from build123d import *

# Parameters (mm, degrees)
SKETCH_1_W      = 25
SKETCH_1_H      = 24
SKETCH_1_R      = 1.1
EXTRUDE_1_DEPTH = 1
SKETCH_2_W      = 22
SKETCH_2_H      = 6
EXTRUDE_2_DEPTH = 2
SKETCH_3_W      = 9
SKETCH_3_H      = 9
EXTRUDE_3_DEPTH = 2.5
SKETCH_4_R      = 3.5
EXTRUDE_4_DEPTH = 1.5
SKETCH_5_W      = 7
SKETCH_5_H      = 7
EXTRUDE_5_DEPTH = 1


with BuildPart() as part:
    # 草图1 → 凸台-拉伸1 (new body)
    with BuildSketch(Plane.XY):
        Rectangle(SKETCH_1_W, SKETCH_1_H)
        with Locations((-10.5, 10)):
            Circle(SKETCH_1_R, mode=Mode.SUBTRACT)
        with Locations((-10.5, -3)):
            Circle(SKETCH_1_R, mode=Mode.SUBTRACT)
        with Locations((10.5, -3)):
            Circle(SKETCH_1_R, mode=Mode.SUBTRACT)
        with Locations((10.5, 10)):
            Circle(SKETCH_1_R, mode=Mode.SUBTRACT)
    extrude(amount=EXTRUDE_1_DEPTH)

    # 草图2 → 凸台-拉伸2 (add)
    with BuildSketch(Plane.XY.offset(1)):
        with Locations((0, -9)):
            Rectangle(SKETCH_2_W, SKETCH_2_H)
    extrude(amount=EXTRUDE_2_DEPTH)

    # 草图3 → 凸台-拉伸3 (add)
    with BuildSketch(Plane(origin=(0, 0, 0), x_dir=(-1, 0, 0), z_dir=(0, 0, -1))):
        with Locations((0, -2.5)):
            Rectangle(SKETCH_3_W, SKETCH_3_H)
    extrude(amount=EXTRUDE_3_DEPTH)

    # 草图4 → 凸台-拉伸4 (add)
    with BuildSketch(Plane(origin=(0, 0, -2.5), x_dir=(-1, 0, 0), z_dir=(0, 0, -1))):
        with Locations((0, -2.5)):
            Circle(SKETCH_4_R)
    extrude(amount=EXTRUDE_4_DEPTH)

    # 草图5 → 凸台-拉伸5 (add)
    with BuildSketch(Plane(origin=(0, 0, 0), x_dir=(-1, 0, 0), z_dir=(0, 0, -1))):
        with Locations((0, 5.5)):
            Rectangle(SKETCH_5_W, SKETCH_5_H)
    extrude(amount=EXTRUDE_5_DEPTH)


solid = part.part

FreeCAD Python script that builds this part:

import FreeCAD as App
import Part
import Sketcher
from FreeCAD import Vector

doc = App.newDocument("Part")
body = doc.addObject("PartDesign::Body", "Body")

sketch1 = body.newObject("Sketcher::SketchObject", "Sketch")
sketch1.AttachmentSupport = (doc.getObject("XY_Plane"), [""])
sketch1.MapMode = "FlatFace"
sketch1.addGeometry(Part.LineSegment(Vector(-12.5, 12, 0), Vector(-12.5, -12, 0)), False)
sketch1.addGeometry(Part.LineSegment(Vector(-12.5, -12, 0), Vector(12.5, -12, 0)), False)
sketch1.addGeometry(Part.LineSegment(Vector(12.5, -12, 0), Vector(12.5, 12, 0)), False)
sketch1.addGeometry(Part.LineSegment(Vector(12.5, 12, 0), Vector(-12.5, 12, 0)), False)
sketch1.addGeometry(Part.Circle(Vector(-10.5, -3, 0), Vector(0, 0, 1), 1.1), False)
sketch1.addGeometry(Part.Circle(Vector(10.5, -3, 0), Vector(0, 0, 1), 1.1), False)
sketch1.addGeometry(Part.Circle(Vector(-10.5, 10, 0), Vector(0, 0, 1), 1.1), False)
sketch1.addGeometry(Part.Circle(Vector(10.5, 10, 0), Vector(0, 0, 1), 1.1), False)
sketch1.addConstraint(Sketcher.Constraint("Coincident", 0, 2, 1, 1))
sketch1.addConstraint(Sketcher.Constraint("Coincident", 1, 2, 2, 1))
sketch1.addConstraint(Sketcher.Constraint("Coincident", 2, 2, 3, 1))
sketch1.addConstraint(Sketcher.Constraint("Coincident", 3, 2, 0, 1))
sketch1.addConstraint(Sketcher.Constraint("Vertical", 0))
sketch1.addConstraint(Sketcher.Constraint("Horizontal", 1))
sketch1.addConstraint(Sketcher.Constraint("Vertical", 2))
sketch1.addConstraint(Sketcher.Constraint("Horizontal", 3))
sketch1.addConstraint(Sketcher.Constraint("Equal", 4, 5))
sketch1.addConstraint(Sketcher.Constraint("Equal", 5, 6))
sketch1.addConstraint(Sketcher.Constraint("Equal", 6, 7))
sketch1.addConstraint(Sketcher.Constraint("Symmetric", 0, 2, 2, 2, -1, 1))
sketch1.addConstraint(Sketcher.Constraint("Symmetric", 4, 3, 5, 3, -2))
sketch1.addConstraint(Sketcher.Constraint("Symmetric", 6, 3, 7, 3, -2))
sketch1.addConstraint(Sketcher.Constraint("Vertical", 4, 3, 6, 3))
sketch1.addConstraint(Sketcher.Constraint("Diameter", 4, 2.2))
sketch1.addConstraint(Sketcher.Constraint("DistanceX", 1, 1, 1, 2, 25.0))
sketch1.addConstraint(Sketcher.Constraint("DistanceY", 0, 2, 0, 1, 24.0))
sketch1.addConstraint(Sketcher.Constraint("DistanceY", 4, 3, -1, 1, 3.0))
sketch1.addConstraint(Sketcher.Constraint("DistanceY", -1, 1, 6, 3, 10.0))
sketch1.addConstraint(Sketcher.Constraint("DistanceX", 4, 3, 5, 3, 21.0))
pad1 = body.newObject("PartDesign::Pad", "Pad")
pad1.Profile = sketch1
pad1.Length = 1

sketch2 = body.newObject("Sketcher::SketchObject", "Sketch001")
sketch2.AttachmentSupport = (doc.getObject("XY_Plane"), [""])
sketch2.MapMode = "FlatFace"
sketch2.AttachmentOffset = App.Placement(Vector(0, 0, 1), App.Rotation())
sketch2.addGeometry(Part.LineSegment(Vector(-11, -6, 0), Vector(-11, -12, 0)), False)
sketch2.addGeometry(Part.LineSegment(Vector(-11, -12, 0), Vector(11, -12, 0)), False)
sketch2.addGeometry(Part.LineSegment(Vector(11, -12, 0), Vector(11, -6, 0)), False)
sketch2.addGeometry(Part.LineSegment(Vector(11, -6, 0), Vector(-11, -6, 0)), False)
sketch2.addConstraint(Sketcher.Constraint("Coincident", 0, 2, 1, 1))
sketch2.addConstraint(Sketcher.Constraint("Coincident", 1, 2, 2, 1))
sketch2.addConstraint(Sketcher.Constraint("Coincident", 2, 2, 3, 1))
sketch2.addConstraint(Sketcher.Constraint("Coincident", 3, 2, 0, 1))
sketch2.addConstraint(Sketcher.Constraint("Vertical", 0))
sketch2.addConstraint(Sketcher.Constraint("Horizontal", 1))
sketch2.addConstraint(Sketcher.Constraint("Vertical", 2))
sketch2.addConstraint(Sketcher.Constraint("Horizontal", 3))
sketch2.addConstraint(Sketcher.Constraint("DistanceX", 1, 1, 1, 2, 22.0))
sketch2.addConstraint(Sketcher.Constraint("DistanceY", 0, 2, 0, 1, 6.0))
sketch2.addConstraint(Sketcher.Constraint("DistanceX", 0, 2, -1, 1, 11.0))
sketch2.addConstraint(Sketcher.Constraint("DistanceY", 0, 2, -1, 1, 12.0))
pad2 = body.newObject("PartDesign::Pad", "Pad001")
pad2.Profile = sketch2
pad2.Length = 2

sketch3 = body.newObject("Sketcher::SketchObject", "Sketch002")
sketch3.AttachmentSupport = (doc.getObject("XY_Plane"), [""])
sketch3.MapMode = "FlatFace"
sketch3.addGeometry(Part.LineSegment(Vector(4.5, 2, 0), Vector(4.5, -7, 0)), False)
sketch3.addGeometry(Part.LineSegment(Vector(4.5, -7, 0), Vector(-4.5, -7, 0)), False)
sketch3.addGeometry(Part.LineSegment(Vector(-4.5, -7, 0), Vector(-4.5, 2, 0)), False)
sketch3.addGeometry(Part.LineSegment(Vector(-4.5, 2, 0), Vector(4.5, 2, 0)), False)
sketch3.addConstraint(Sketcher.Constraint("Coincident", 0, 2, 1, 1))
sketch3.addConstraint(Sketcher.Constraint("Coincident", 1, 2, 2, 1))
sketch3.addConstraint(Sketcher.Constraint("Coincident", 2, 2, 3, 1))
sketch3.addConstraint(Sketcher.Constraint("Coincident", 3, 2, 0, 1))
sketch3.addConstraint(Sketcher.Constraint("Vertical", 0))
sketch3.addConstraint(Sketcher.Constraint("Horizontal", 1))
sketch3.addConstraint(Sketcher.Constraint("Vertical", 2))
sketch3.addConstraint(Sketcher.Constraint("Horizontal", 3))
sketch3.addConstraint(Sketcher.Constraint("Equal", 3, 0))
sketch3.addConstraint(Sketcher.Constraint("DistanceX", 1, 2, 1, 1, 9.0))
sketch3.addConstraint(Sketcher.Constraint("DistanceY", 0, 2, -1, 1, 7.0))
sketch3.addConstraint(Sketcher.Constraint("DistanceX", -1, 1, 0, 2, 4.5))
pad3 = body.newObject("PartDesign::Pad", "Pad002")
pad3.Profile = sketch3
pad3.Length = 2.5
pad3.Reversed = True

sketch4 = body.newObject("Sketcher::SketchObject", "Sketch003")
sketch4.AttachmentSupport = (doc.getObject("XY_Plane"), [""])
sketch4.MapMode = "FlatFace"
sketch4.AttachmentOffset = App.Placement(Vector(0, 0, -2.5), App.Rotation())
sketch4.addGeometry(Part.Circle(Vector(0, -2.5, 0), Vector(0, 0, 1), 3.5), False)
sketch4.addConstraint(Sketcher.Constraint("PointOnObject", 0, 3, -2))
sketch4.addConstraint(Sketcher.Constraint("Diameter", 0, 7.0))
sketch4.addConstraint(Sketcher.Constraint("DistanceY", 0, 3, -1, 1, 2.5))
pad4 = body.newObject("PartDesign::Pad", "Pad003")
pad4.Profile = sketch4
pad4.Length = 1.5
pad4.Reversed = True

sketch5 = body.newObject("Sketcher::SketchObject", "Sketch004")
sketch5.AttachmentSupport = (doc.getObject("XY_Plane"), [""])
sketch5.MapMode = "FlatFace"
sketch5.addGeometry(Part.LineSegment(Vector(3.5, 9, 0), Vector(3.5, 2, 0)), False)
sketch5.addGeometry(Part.LineSegment(Vector(3.5, 2, 0), Vector(-3.5, 2, 0)), False)
sketch5.addGeometry(Part.LineSegment(Vector(-3.5, 2, 0), Vector(-3.5, 9, 0)), False)
sketch5.addGeometry(Part.LineSegment(Vector(-3.5, 9, 0), Vector(3.5, 9, 0)), False)
sketch5.addConstraint(Sketcher.Constraint("Coincident", 0, 2, 1, 1))
sketch5.addConstraint(Sketcher.Constraint("Coincident", 1, 2, 2, 1))
sketch5.addConstraint(Sketcher.Constraint("Coincident", 2, 2, 3, 1))
sketch5.addConstraint(Sketcher.Constraint("Coincident", 3, 2, 0, 1))
sketch5.addConstraint(Sketcher.Constraint("Vertical", 0))
sketch5.addConstraint(Sketcher.Constraint("Horizontal", 1))
sketch5.addConstraint(Sketcher.Constraint("Vertical", 2))
sketch5.addConstraint(Sketcher.Constraint("Horizontal", 3))
sketch5.addConstraint(Sketcher.Constraint("Equal", 3, 0))
sketch5.addConstraint(Sketcher.Constraint("DistanceX", 1, 2, 1, 1, 7.0))
sketch5.addConstraint(Sketcher.Constraint("DistanceY", -1, 1, 0, 2, 2.0))
sketch5.addConstraint(Sketcher.Constraint("DistanceX", -1, 1, 0, 2, 3.5))
pad5 = body.newObject("PartDesign::Pad", "Pad004")
pad5.Profile = sketch5
pad5.Length = 1
pad5.Reversed = True

doc.recompute()
